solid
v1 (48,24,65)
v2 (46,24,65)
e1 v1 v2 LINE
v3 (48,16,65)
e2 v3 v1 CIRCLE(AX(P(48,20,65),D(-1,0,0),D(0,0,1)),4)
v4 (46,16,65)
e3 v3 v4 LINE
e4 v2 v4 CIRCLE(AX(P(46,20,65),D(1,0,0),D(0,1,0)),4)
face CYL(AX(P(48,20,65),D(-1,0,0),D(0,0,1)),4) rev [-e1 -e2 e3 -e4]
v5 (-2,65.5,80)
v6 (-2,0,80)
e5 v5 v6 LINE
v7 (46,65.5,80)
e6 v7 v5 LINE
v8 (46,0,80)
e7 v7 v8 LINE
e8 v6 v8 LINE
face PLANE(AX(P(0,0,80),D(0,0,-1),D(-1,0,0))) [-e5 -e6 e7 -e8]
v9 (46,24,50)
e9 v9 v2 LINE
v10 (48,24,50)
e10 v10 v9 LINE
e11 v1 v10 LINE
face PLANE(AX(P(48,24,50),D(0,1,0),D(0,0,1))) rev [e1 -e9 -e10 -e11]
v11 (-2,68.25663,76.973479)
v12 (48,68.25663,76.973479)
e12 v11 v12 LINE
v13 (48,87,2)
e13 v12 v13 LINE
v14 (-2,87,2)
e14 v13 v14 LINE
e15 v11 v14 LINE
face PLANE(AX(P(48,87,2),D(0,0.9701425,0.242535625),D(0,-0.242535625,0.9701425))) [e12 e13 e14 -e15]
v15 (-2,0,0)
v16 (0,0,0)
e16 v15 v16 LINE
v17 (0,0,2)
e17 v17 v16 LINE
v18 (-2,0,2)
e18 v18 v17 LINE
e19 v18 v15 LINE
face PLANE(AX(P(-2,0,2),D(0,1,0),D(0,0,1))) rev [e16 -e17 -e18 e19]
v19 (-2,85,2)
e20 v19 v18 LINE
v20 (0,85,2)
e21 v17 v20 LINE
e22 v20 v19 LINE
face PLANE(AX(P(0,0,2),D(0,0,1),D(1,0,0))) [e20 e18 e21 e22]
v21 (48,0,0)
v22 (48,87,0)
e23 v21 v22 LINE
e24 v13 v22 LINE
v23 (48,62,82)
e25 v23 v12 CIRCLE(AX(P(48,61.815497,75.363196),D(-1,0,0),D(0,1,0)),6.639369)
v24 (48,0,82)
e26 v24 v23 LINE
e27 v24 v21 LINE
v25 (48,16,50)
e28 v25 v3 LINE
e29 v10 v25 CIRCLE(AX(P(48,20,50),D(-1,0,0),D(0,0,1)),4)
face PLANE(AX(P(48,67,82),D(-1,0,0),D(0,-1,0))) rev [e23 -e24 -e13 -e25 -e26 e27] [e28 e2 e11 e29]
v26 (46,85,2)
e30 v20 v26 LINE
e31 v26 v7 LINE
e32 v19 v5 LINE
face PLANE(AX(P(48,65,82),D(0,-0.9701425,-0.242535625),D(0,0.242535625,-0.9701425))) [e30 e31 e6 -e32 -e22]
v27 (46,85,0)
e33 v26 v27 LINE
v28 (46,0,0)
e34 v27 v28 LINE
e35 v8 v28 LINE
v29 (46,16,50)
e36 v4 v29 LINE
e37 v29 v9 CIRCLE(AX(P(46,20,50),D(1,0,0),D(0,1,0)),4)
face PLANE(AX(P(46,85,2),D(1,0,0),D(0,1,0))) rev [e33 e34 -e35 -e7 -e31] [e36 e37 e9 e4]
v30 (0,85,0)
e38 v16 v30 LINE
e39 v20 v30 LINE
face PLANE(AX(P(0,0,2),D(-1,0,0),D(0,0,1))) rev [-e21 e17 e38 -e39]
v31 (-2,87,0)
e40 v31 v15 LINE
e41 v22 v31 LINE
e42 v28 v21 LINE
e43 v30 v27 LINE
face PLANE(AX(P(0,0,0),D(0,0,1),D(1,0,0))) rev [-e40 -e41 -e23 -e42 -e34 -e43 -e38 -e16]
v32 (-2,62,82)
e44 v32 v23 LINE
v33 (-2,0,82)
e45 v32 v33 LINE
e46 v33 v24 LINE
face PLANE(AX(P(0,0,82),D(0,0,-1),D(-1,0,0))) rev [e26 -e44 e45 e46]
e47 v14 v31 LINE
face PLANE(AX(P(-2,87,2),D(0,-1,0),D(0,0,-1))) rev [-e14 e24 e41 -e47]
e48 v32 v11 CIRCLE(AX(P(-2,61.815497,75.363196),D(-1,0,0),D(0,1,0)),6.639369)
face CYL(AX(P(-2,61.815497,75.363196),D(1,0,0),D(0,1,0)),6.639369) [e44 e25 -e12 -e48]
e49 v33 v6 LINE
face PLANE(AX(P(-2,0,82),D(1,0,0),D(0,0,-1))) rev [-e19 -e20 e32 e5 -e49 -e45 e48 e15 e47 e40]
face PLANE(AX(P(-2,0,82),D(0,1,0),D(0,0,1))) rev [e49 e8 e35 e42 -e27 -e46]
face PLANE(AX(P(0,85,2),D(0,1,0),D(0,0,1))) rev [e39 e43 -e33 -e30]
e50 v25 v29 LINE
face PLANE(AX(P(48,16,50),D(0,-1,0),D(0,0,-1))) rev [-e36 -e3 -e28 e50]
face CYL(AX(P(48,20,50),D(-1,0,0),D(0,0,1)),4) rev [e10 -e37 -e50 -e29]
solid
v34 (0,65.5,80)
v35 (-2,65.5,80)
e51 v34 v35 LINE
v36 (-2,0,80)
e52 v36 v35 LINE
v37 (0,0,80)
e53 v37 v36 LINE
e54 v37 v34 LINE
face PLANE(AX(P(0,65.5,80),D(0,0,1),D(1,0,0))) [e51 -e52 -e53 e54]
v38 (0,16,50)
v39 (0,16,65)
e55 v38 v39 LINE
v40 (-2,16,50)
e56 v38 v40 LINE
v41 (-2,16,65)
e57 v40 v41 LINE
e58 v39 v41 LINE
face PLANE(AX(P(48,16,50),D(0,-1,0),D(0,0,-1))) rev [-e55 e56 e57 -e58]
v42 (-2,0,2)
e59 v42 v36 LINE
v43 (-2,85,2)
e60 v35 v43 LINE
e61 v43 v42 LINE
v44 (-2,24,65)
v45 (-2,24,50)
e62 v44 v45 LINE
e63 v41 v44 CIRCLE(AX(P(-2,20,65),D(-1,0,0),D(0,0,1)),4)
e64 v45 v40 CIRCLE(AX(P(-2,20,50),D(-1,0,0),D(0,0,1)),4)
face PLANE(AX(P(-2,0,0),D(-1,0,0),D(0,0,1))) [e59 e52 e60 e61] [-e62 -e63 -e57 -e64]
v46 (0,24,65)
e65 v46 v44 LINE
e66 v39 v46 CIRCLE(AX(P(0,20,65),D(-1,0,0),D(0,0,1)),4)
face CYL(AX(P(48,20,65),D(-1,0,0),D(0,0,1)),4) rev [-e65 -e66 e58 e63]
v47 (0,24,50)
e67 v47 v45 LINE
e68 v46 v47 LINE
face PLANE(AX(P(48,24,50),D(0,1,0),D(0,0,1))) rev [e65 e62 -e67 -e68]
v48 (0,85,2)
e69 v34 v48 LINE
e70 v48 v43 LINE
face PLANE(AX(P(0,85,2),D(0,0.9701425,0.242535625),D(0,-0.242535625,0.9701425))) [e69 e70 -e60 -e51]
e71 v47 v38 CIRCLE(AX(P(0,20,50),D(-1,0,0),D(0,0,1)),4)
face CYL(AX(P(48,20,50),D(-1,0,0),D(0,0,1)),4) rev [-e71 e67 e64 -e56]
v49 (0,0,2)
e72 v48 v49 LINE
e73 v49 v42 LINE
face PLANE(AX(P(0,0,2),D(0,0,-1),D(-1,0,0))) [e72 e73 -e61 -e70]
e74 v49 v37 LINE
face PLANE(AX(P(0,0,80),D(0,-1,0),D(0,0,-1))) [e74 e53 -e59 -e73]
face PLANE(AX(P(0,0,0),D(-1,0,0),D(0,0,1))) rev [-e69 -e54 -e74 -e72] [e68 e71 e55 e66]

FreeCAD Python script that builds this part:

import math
import FreeCAD as App
import Part
import Sketcher

V = App.Vector

doc = App.newDocument("Part")
body = doc.addObject("PartDesign::Body", "Body")

sketch1 = body.newObject("Sketcher::SketchObject", "Sketch")
sketch1.AttachmentSupport = (doc.getObject("XY_Plane"), [""])
sketch1.MapMode = "FlatFace"
sketch1.AttachmentOffset = App.Placement(V(0, 0, 80), App.Rotation())
sketch1.addGeometry(Part.LineSegment(V(-2, 67, 0), V(-2, 0, 0)), False)
sketch1.addGeometry(Part.LineSegment(V(-2, 0, 0), V(48, 0, 0)), False)
sketch1.addGeometry(Part.LineSegment(V(48, 0, 0), V(48, 67, 0)), False)
sketch1.addGeometry(Part.LineSegment(V(48, 67, 0), V(-2, 67, 0)), False)
sketch1.addConstraint(Sketcher.Constraint("Coincident", 0, 2, 1, 1))
sketch1.addConstraint(Sketcher.Constraint("Coincident", 1, 2, 2, 1))
sketch1.addConstraint(Sketcher.Constraint("Coincident", 2, 2, 3, 1))
sketch1.addConstraint(Sketcher.Constraint("Coincident", 3, 2, 0, 1))
sketch1.addConstraint(Sketcher.Constraint("Vertical", 0))
sketch1.addConstraint(Sketcher.Constraint("Horizontal", 1))
sketch1.addConstraint(Sketcher.Constraint("Vertical", 2))
sketch1.addConstraint(Sketcher.Constraint("Horizontal", 3))
sketch1.addConstraint(Sketcher.Constraint("PointOnObject", 0, 2, -1))
sketch1.addConstraint(Sketcher.Constraint("DistanceX", 1, 1, 1, 2, 50.0))
sketch1.addConstraint(Sketcher.Constraint("DistanceY", 0, 2, 0, 1, 67.0))
sketch1.addConstraint(Sketcher.Constraint("DistanceX", 0, 2, -1, 1, 2.0))
pad1 = body.newObject("PartDesign::Pad", "Pad")
pad1.Profile = sketch1
pad1.Length = 2
body2 = doc.addObject("PartDesign::Body", "Body001")

sketch2 = body2.newObject("Sketcher::SketchObject", "Sketch001")
sketch2.AttachmentSupport = (doc.getObject("XY_Plane001"), [""])
sketch2.MapMode = "FlatFace"
sketch2.addGeometry(Part.LineSegment(V(0, 0, 0), V(0, 85, 0)), False)
sketch2.addGeometry(Part.LineSegment(V(0, 85, 0), V(46, 85, 0)), False)
sketch2.addGeometry(Part.LineSegment(V(46, 85, 0), V(46, 0, 0)), False)
sketch2.addGeometry(Part.LineSegment(V(46, 0, 0), V(48, 0, 0)), False)
sketch2.addGeometry(Part.LineSegment(V(48, 0, 0), V(48, 87, 0)), False)
sketch2.addGeometry(Part.LineSegment(V(48, 87, 0), V(-2, 87, 0)), False)
sketch2.addGeometry(Part.LineSegment(V(-2, 87, 0), V(-2, 0, 0)), False)
sketch2.addGeometry(Part.LineSegment(V(-2, 0, 0), V(0, 0, 0)), False)
sketch2.addConstraint(Sketcher.Constraint("Coincident", 0, 2, 1, 1))
sketch2.addConstraint(Sketcher.Constraint("Coincident", 1, 2, 2, 1))
sketch2.addConstraint(Sketcher.Constraint("Coincident", 2, 2, 3, 1))
sketch2.addConstraint(Sketcher.Constraint("Coincident", 3, 2, 4, 1))
sketch2.addConstraint(Sketcher.Constraint("Coincident", 4, 2, 5, 1))
sketch2.addConstraint(Sketcher.Constraint("Coincident", 5, 2, 6, 1))
sketch2.addConstraint(Sketcher.Constraint("Coincident", 6, 2, 7, 1))
sketch2.addConstraint(Sketcher.Constraint("Coincident", 7, 2, 0, 1))
sketch2.addConstraint(Sketcher.Constraint("Vertical", 0))
sketch2.addConstraint(Sketcher.Constraint("Horizontal", 1))
sketch2.addConstraint(Sketcher.Constraint("Vertical", 2))
sketch2.addConstraint(Sketcher.Constraint("Horizontal", 3))
sketch2.addConstraint(Sketcher.Constraint("Vertical", 4))
sketch2.addConstraint(Sketcher.Constraint("Horizontal", 5))
sketch2.addConstraint(Sketcher.Constraint("Vertical", 6))
sketch2.addConstraint(Sketcher.Constraint("Horizontal", 7))
sketch2.addConstraint(Sketcher.Constraint("Coincident", 7, 2, -1, 1))
sketch2.addConstraint(Sketcher.Constraint("PointOnObject", 2, 2, -1))
sketch2.addConstraint(Sketcher.Constraint("Equal", 3, 7))
sketch2.addConstraint(Sketcher.Constraint("DistanceX", 1, 1, 1, 2, 46.0))
sketch2.addConstraint(Sketcher.Constraint("DistanceX", 3, 1, 3, 2, 2.0))
sketch2.addConstraint(Sketcher.Constraint("DistanceY", 0, 1, 0, 2, 85.0))
sketch2.addConstraint(Sketcher.Constraint("DistanceY", 4, 1, 4, 2, 87.0))
pad2 = body2.newObject("PartDesign::Pad", "Pad001")
pad2.Profile = sketch2
pad2.Length = 2
body.AllowCompound = True
doc.recompute()

boolean = body.newObject("PartDesign::Boolean", "Boolean")
boolean.Type = "Fuse"
boolean.addObjects([body2])

sketch3 = body.newObject("Sketcher::SketchObject", "Sketch002")
sketch3.AttachmentSupport = (doc.getObject("YZ_Plane"), [""])
sketch3.MapMode = "FlatFace"
sketch3.AttachmentOffset = App.Placement(V(0, 0, -2), App.Rotation())
sketch3.addGeometry(Part.LineSegment(V(67, 82, 0), V(87, 2, 0)), False)
sketch3.addGeometry(Part.LineSegment(V(87, 2, 0), V(85, 2, 0)), False)
sketch3.addGeometry(Part.LineSegment(V(85, 2, 0), V(65, 82, 0)), False)
sketch3.addGeometry(Part.LineSegment(V(65, 82, 0), V(67, 82, 0)), False)
sketch3.addConstraint(Sketcher.Constraint("Coincident", 0, 2, 1, 1))
sketch3.addConstraint(Sketcher.Constraint("Coincident", 1, 2, 2, 1))
sketch3.addConstraint(Sketcher.Constraint("Coincident", 2, 2, 3, 1))
sketch3.addConstraint(Sketcher.Constraint("Coincident", 3, 2, 0, 1))
sketch3.addConstraint(Sketcher.Constraint("Horizontal", 1))
sketch3.addConstraint(Sketcher.Constraint("Horizontal", 3))
sketch3.addConstraint(Sketcher.Constraint("Parallel", 0, 2))
sketch3.addConstraint(Sketcher.Constraint("DistanceX", 1, 2, 1, 1, 2.0))
sketch3.addConstraint(Sketcher.Constraint("DistanceX", -1, 1, 0, 2, 87.0))
sketch3.addConstraint(Sketcher.Constraint("DistanceY", -1, 1, 0, 2, 2.0))
sketch3.addConstraint(Sketcher.Constraint("DistanceX", -1, 1, 2, 2, 65.0))
sketch3.addConstraint(Sketcher.Constraint("DistanceY", -1, 1, 2, 2, 82.0))
pad3 = body.newObject("PartDesign::Pad", "Pad002")
pad3.Profile = sketch3
pad3.Length = 50

sketch4 = body.newObject("Sketcher::SketchObject", "Sketch003")
sketch4.AttachmentSupport = (doc.getObject("YZ_Plane"), [""])
sketch4.MapMode = "FlatFace"
sketch4.AttachmentOffset = App.Placement(V(0, 0, 48), App.Rotation())
sketch4.addGeometry(Part.LineSegment(V(85, 2, 0), V(66, 80, 0)), False)
sketch4.addGeometry(Part.LineSegment(V(66, 80, 0), V(0, 80, 0)), False)
sketch4.addGeometry(Part.LineSegment(V(0, 80, 0), V(0, 2, 0)), False)
sketch4.addGeometry(Part.LineSegment(V(0, 2, 0), V(85, 2, 0)), False)
sketch4.addConstraint(Sketcher.Constraint("Coincident", 0, 2, 1, 1))
sketch4.addConstraint(Sketcher.Constraint("Coincident", 1, 2, 2, 1))
sketch4.addConstraint(Sketcher.Constraint("Coincident", 2, 2, 3, 1))
sketch4.addConstraint(Sketcher.Constraint("Coincident", 3, 2, 0, 1))
sketch4.addConstraint(Sketcher.Constraint("Horizontal", 1))
sketch4.addConstraint(Sketcher.Constraint("Vertical", 2))
sketch4.addConstraint(Sketcher.Constraint("Horizontal", 3))
sketch4.addConstraint(Sketcher.Constraint("PointOnObject", 1, 2, -2))
sketch4.addConstraint(Sketcher.Constraint("DistanceX", 3, 1, 3, 2, 85.0))
sketch4.addConstraint(Sketcher.Constraint("DistanceY", 2, 2, 2, 1, 78.0))
sketch4.addConstraint(Sketcher.Constraint("DistanceX", 1, 2, 1, 1, 65.5))
sketch4.addConstraint(Sketcher.Constraint("DistanceY", -1, 1, 0, 2, 80.0))
pad4 = body.newObject("PartDesign::Pad", "Pad003")
pad4.Profile = sketch4
pad4.Length = 2
pad4.Reversed = True

sketch5 = body.newObject("Sketcher::SketchObject", "Sketch004")
sketch5.AttachmentSupport = (doc.getObject("YZ_Plane"), [""])
sketch5.MapMode = "FlatFace"
sketch5.AttachmentOffset = App.Placement(V(0, 0, 48), App.Rotation())
sketch5.addGeometry(Part.LineSegment(V(68, 77, 0), V(67, 82, 0)), False)
sketch5.addGeometry(Part.LineSegment(V(67, 82, 0), V(62, 82, 0)), False)
sketch5.addGeometry(Part.ArcOfCircle(Part.Circle(V(62, 75, 0), V(0, 0, 1), 7), math.radians(14), math.radians(88)), False)
sketch5.addConstraint(Sketcher.Constraint("Coincident", 0, 2, 1, 1))
sketch5.addConstraint(Sketcher.Constraint("Coincident", 1, 2, 2, 2))
sketch5.addConstraint(Sketcher.Constraint("Tangent", 2, 1, 0, 1))
sketch5.addConstraint(Sketcher.Constraint("Horizontal", 1))
sketch5.addConstraint(Sketcher.Constraint("DistanceX", 1, 2, 1, 1, 5.0))
sketch5.addConstraint(Sketcher.Constraint("DistanceX", -1, 1, 0, 2, 67.0))
sketch5.addConstraint(Sketcher.Constraint("DistanceY", -1, 1, 0, 2, 82.0))
sketch5.addConstraint(Sketcher.Constraint("Radius", 2, 6.639369))
sketch5.addConstraint(Sketcher.Constraint("Distance", 0, 5.181219))
pocket1 = body.newObject("PartDesign::Pocket", "Pocket")
pocket1.Profile = sketch5
pocket1.Type = "ThroughAll"
body3 = doc.addObject("PartDesign::Body", "Body002")

sketch6 = body3.newObject("Sketcher::SketchObject", "Sketch005")
sketch6.AttachmentSupport = (doc.getObject("YZ_Plane002"), [""])
sketch6.MapMode = "FlatFace"
sketch6.AttachmentOffset = App.Placement(V(0, 0, -2), App.Rotation())
sketch6.addGeometry(Part.LineSegment(V(66, 80, 0), V(85, 2, 0)), False)
sketch6.addGeometry(Part.LineSegment(V(85, 2, 0), V(0, 2, 0)), False)
sketch6.addGeometry(Part.LineSegment(V(0, 2, 0), V(0, 80, 0)), False)
sketch6.addGeometry(Part.LineSegment(V(0, 80, 0), V(66, 80, 0)), False)
sketch6.addConstraint(Sketcher.Constraint("Coincident", 0, 2, 1, 1))
sketch6.addConstraint(Sketcher.Constraint("Coincident", 1, 2, 2, 1))
sketch6.addConstraint(Sketcher.Constraint("Coincident", 2, 2, 3, 1))
sketch6.addConstraint(Sketcher.Constraint("Coincident", 3, 2, 0, 1))
sketch6.addConstraint(Sketcher.Constraint("Horizontal", 1))
sketch6.addConstraint(Sketcher.Constraint("Vertical", 2))
sketch6.addConstraint(Sketcher.Constraint("Horizontal", 3))
sketch6.addConstraint(Sketcher.Constraint("PointOnObject", 1, 2, -2))
sketch6.addConstraint(Sketcher.Constraint("DistanceX", 1, 2, 1, 1, 85.0))
sketch6.addConstraint(Sketcher.Constraint("DistanceY", 2, 1, 2, 2, 78.0))
sketch6.addConstraint(Sketcher.Constraint("DistanceX", 3, 1, 3, 2, 65.5))
sketch6.addConstraint(Sketcher.Constraint("DistanceY", -1, 1, 0, 2, 2.0))
pad5 = body3.newObject("PartDesign::Pad", "Pad004")
pad5.Profile = sketch6
pad5.Length = 2
body4 = doc.addObject("PartDesign::Body", "Body003")

sketch7 = body4.newObject("Sketcher::SketchObject", "Sketch006")
sketch7.AttachmentSupport = (doc.getObject("YZ_Plane003"), [""])
sketch7.MapMode = "FlatFace"
sketch7.AttachmentOffset = App.Placement(V(0, 0, -2), App.Rotation())
sketch7.addGeometry(Part.LineSegment(V(24, 65, 0), V(24, 50, 0)), False)
sketch7.addGeometry(Part.ArcOfCircle(Part.Circle(V(20, 50, 0), V(0, 0, 1), 4), math.radians(180), math.radians(360)), False)
sketch7.addGeometry(Part.LineSegment(V(16, 50, 0), V(16, 65, 0)), False)
sketch7.addGeometry(Part.ArcOfCircle(Part.Circle(V(20, 65, 0), V(0, 0, 1), 4), math.radians(0), math.radians(180)), False)
sketch7.addConstraint(Sketcher.Constraint("Tangent", 0, 2, 1, 2))
sketch7.addConstraint(Sketcher.Constraint("Tangent", 1, 1, 2, 1))
sketch7.addConstraint(Sketcher.Constraint("Tangent", 2, 2, 3, 2))
sketch7.addConstraint(Sketcher.Constraint("Tangent", 3, 1, 0, 1))
sketch7.addConstraint(Sketcher.Constraint("Vertical", 0))
sketch7.addConstraint(Sketcher.Constraint("Vertical", 2))
sketch7.addConstraint(Sketcher.Constraint("Radius", 1, 4.0))
sketch7.addConstraint(Sketcher.Constraint("DistanceY", 0, 2, 0, 1, 15.0))
sketch7.addConstraint(Sketcher.Constraint("DistanceX", -1, 1, 1, 3, 20.0))
sketch7.addConstraint(Sketcher.Constraint("DistanceY", -1, 1, 1, 3, 50.0))
pad6 = body4.newObject("PartDesign::Pad", "Pad005")
pad6.Profile = sketch7
pad6.Length = 130.587808
doc.recompute()

body5 = doc.addObject("PartDesign::Body", "Body004")
body5.BaseFeature = body4
boolean2 = body.newObject("PartDesign::Boolean", "Boolean001")
boolean2.Type = "Cut"
boolean2.addObjects([body5])
doc.recompute()

boolean3 = body3.newObject("PartDesign::Boolean", "Boolean002")
boolean3.Type = "Cut"
boolean3.addObjects([body4])

doc.recompute()
